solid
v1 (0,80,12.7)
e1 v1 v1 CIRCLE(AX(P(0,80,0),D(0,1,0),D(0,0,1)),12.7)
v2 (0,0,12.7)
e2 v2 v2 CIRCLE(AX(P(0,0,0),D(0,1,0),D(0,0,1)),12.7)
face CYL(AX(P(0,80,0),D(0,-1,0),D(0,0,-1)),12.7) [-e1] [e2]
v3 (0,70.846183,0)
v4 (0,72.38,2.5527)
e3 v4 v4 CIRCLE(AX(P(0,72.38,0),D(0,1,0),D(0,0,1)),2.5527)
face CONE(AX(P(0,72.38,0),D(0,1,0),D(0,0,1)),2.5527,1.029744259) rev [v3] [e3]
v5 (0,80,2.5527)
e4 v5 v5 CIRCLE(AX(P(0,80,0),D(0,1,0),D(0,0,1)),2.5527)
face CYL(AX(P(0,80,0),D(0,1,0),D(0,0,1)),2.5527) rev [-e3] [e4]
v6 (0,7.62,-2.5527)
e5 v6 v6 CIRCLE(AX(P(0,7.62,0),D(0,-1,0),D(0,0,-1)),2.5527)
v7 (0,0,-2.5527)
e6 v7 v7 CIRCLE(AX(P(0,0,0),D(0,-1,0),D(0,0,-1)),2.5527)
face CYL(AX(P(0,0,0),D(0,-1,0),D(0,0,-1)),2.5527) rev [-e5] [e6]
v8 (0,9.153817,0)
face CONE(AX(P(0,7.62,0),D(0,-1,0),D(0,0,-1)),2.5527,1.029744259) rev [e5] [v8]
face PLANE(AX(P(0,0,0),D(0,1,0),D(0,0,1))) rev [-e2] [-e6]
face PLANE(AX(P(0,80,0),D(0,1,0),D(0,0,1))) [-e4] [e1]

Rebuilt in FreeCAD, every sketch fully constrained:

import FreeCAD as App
import Part
import Sketcher

V = App.Vector
Q = App.Units.Quantity

doc = App.newDocument("Part")
params = doc.addObject("Spreadsheet::Sheet", "Params")
for row, (alias, value) in enumerate([
    ("sketch1_diameter", "1 in"),
    ("pad1_length", "80 mm"),
    ("sketch2_diameter", "0.201 in"),
    ("hole_diameter", "0.201 in"),
    ("hole_depth", "0.3 in"),
    ("sketch3_diameter", "0.201 in"),
    ("hole2_diameter", "0.201 in"),
    ("hole2_depth", "0.3 in"),
], start=1):
    params.set(f"A{row}", alias)
    params.set(f"B{row}", "=" + value)
    params.setAlias(f"B{row}", alias)

body = doc.addObject("PartDesign::Body", "Body")

# Sketch on XZ plane
sketch1 = body.newObject("Sketcher::SketchObject", "Sketch")
sketch1.AttachmentSupport = (doc.getObject("XZ_Plane"), [""])
sketch1.MapMode = "FlatFace"
sketch1.addGeometry(Part.Circle(V(0, 0, 0), V(0, 0, 1), 13), False)
sketch1.addConstraint(Sketcher.Constraint("Coincident", 0, 3, -1, 1))
sketch1.addConstraint(Sketcher.Constraint("Diameter", 0, Q("1 in")))
sketch1.setExpression("Constraints[1]", "Params.sketch1_diameter")
pad1 = body.newObject("PartDesign::Pad", "Pad")
pad1.Profile = sketch1
pad1.setExpression("Length", "Params.pad1_length")
pad1.Reversed = True

# Sketch on XZ plane
sketch2 = body.newObject("Sketcher::SketchObject", "Sketch001")
sketch2.AttachmentSupport = (doc.getObject("XZ_Plane"), [""])
sketch2.MapMode = "FlatFace"
sketch2.addGeometry(Part.Circle(V(0, 0, 0), V(0, 0, 1), 2.6), False)
sketch2.addConstraint(Sketcher.Constraint("Coincident", 0, 3, -1, 1))
sketch2.addConstraint(Sketcher.Constraint("Diameter", 0, Q("0.201 in")))
sketch2.setExpression("Constraints[1]", "Params.sketch2_diameter")
doc.recompute()
hole = body.newObject("PartDesign::Hole", "Hole")
hole.Profile = sketch2
hole.ThreadType = "None"
hole.setExpression("Diameter", "Params.hole_diameter")
hole.DepthType = "Dimension"
hole.setExpression("Depth", "Params.hole_depth")
hole.DrillPoint = "Angled"
hole.DrillPointAngle = 118

# Sketch on XZ plane
sketch3 = body.newObject("Sketcher::SketchObject", "Sketch002")
sketch3.AttachmentSupport = (doc.getObject("XZ_Plane"), [""])
sketch3.MapMode = "FlatFace"
sketch3.AttachmentOffset = App.Placement(V(0, 0, -80), App.Rotation())
sketch3.addGeometry(Part.Circle(V(0, 0, 0), V(0, 0, 1), 2.6), False)
sketch3.addConstraint(Sketcher.Constraint("Coincident", 0, 3, -1, 1))
sketch3.addConstraint(Sketcher.Constraint("Diameter", 0, Q("0.201 in")))
sketch3.setExpression("Constraints[1]", "Params.sketch3_diameter")
doc.recompute()
hole2 = body.newObject("PartDesign::Hole", "Hole001")
hole2.Profile = sketch3
hole2.ThreadType = "None"
hole2.setExpression("Diameter", "Params.hole2_diameter")
hole2.DepthType = "Dimension"
hole2.setExpression("Depth", "Params.hole2_depth")
hole2.DrillPoint = "Angled"
hole2.DrillPointAngle = 118
hole2.Reversed = True

doc.recompute()
